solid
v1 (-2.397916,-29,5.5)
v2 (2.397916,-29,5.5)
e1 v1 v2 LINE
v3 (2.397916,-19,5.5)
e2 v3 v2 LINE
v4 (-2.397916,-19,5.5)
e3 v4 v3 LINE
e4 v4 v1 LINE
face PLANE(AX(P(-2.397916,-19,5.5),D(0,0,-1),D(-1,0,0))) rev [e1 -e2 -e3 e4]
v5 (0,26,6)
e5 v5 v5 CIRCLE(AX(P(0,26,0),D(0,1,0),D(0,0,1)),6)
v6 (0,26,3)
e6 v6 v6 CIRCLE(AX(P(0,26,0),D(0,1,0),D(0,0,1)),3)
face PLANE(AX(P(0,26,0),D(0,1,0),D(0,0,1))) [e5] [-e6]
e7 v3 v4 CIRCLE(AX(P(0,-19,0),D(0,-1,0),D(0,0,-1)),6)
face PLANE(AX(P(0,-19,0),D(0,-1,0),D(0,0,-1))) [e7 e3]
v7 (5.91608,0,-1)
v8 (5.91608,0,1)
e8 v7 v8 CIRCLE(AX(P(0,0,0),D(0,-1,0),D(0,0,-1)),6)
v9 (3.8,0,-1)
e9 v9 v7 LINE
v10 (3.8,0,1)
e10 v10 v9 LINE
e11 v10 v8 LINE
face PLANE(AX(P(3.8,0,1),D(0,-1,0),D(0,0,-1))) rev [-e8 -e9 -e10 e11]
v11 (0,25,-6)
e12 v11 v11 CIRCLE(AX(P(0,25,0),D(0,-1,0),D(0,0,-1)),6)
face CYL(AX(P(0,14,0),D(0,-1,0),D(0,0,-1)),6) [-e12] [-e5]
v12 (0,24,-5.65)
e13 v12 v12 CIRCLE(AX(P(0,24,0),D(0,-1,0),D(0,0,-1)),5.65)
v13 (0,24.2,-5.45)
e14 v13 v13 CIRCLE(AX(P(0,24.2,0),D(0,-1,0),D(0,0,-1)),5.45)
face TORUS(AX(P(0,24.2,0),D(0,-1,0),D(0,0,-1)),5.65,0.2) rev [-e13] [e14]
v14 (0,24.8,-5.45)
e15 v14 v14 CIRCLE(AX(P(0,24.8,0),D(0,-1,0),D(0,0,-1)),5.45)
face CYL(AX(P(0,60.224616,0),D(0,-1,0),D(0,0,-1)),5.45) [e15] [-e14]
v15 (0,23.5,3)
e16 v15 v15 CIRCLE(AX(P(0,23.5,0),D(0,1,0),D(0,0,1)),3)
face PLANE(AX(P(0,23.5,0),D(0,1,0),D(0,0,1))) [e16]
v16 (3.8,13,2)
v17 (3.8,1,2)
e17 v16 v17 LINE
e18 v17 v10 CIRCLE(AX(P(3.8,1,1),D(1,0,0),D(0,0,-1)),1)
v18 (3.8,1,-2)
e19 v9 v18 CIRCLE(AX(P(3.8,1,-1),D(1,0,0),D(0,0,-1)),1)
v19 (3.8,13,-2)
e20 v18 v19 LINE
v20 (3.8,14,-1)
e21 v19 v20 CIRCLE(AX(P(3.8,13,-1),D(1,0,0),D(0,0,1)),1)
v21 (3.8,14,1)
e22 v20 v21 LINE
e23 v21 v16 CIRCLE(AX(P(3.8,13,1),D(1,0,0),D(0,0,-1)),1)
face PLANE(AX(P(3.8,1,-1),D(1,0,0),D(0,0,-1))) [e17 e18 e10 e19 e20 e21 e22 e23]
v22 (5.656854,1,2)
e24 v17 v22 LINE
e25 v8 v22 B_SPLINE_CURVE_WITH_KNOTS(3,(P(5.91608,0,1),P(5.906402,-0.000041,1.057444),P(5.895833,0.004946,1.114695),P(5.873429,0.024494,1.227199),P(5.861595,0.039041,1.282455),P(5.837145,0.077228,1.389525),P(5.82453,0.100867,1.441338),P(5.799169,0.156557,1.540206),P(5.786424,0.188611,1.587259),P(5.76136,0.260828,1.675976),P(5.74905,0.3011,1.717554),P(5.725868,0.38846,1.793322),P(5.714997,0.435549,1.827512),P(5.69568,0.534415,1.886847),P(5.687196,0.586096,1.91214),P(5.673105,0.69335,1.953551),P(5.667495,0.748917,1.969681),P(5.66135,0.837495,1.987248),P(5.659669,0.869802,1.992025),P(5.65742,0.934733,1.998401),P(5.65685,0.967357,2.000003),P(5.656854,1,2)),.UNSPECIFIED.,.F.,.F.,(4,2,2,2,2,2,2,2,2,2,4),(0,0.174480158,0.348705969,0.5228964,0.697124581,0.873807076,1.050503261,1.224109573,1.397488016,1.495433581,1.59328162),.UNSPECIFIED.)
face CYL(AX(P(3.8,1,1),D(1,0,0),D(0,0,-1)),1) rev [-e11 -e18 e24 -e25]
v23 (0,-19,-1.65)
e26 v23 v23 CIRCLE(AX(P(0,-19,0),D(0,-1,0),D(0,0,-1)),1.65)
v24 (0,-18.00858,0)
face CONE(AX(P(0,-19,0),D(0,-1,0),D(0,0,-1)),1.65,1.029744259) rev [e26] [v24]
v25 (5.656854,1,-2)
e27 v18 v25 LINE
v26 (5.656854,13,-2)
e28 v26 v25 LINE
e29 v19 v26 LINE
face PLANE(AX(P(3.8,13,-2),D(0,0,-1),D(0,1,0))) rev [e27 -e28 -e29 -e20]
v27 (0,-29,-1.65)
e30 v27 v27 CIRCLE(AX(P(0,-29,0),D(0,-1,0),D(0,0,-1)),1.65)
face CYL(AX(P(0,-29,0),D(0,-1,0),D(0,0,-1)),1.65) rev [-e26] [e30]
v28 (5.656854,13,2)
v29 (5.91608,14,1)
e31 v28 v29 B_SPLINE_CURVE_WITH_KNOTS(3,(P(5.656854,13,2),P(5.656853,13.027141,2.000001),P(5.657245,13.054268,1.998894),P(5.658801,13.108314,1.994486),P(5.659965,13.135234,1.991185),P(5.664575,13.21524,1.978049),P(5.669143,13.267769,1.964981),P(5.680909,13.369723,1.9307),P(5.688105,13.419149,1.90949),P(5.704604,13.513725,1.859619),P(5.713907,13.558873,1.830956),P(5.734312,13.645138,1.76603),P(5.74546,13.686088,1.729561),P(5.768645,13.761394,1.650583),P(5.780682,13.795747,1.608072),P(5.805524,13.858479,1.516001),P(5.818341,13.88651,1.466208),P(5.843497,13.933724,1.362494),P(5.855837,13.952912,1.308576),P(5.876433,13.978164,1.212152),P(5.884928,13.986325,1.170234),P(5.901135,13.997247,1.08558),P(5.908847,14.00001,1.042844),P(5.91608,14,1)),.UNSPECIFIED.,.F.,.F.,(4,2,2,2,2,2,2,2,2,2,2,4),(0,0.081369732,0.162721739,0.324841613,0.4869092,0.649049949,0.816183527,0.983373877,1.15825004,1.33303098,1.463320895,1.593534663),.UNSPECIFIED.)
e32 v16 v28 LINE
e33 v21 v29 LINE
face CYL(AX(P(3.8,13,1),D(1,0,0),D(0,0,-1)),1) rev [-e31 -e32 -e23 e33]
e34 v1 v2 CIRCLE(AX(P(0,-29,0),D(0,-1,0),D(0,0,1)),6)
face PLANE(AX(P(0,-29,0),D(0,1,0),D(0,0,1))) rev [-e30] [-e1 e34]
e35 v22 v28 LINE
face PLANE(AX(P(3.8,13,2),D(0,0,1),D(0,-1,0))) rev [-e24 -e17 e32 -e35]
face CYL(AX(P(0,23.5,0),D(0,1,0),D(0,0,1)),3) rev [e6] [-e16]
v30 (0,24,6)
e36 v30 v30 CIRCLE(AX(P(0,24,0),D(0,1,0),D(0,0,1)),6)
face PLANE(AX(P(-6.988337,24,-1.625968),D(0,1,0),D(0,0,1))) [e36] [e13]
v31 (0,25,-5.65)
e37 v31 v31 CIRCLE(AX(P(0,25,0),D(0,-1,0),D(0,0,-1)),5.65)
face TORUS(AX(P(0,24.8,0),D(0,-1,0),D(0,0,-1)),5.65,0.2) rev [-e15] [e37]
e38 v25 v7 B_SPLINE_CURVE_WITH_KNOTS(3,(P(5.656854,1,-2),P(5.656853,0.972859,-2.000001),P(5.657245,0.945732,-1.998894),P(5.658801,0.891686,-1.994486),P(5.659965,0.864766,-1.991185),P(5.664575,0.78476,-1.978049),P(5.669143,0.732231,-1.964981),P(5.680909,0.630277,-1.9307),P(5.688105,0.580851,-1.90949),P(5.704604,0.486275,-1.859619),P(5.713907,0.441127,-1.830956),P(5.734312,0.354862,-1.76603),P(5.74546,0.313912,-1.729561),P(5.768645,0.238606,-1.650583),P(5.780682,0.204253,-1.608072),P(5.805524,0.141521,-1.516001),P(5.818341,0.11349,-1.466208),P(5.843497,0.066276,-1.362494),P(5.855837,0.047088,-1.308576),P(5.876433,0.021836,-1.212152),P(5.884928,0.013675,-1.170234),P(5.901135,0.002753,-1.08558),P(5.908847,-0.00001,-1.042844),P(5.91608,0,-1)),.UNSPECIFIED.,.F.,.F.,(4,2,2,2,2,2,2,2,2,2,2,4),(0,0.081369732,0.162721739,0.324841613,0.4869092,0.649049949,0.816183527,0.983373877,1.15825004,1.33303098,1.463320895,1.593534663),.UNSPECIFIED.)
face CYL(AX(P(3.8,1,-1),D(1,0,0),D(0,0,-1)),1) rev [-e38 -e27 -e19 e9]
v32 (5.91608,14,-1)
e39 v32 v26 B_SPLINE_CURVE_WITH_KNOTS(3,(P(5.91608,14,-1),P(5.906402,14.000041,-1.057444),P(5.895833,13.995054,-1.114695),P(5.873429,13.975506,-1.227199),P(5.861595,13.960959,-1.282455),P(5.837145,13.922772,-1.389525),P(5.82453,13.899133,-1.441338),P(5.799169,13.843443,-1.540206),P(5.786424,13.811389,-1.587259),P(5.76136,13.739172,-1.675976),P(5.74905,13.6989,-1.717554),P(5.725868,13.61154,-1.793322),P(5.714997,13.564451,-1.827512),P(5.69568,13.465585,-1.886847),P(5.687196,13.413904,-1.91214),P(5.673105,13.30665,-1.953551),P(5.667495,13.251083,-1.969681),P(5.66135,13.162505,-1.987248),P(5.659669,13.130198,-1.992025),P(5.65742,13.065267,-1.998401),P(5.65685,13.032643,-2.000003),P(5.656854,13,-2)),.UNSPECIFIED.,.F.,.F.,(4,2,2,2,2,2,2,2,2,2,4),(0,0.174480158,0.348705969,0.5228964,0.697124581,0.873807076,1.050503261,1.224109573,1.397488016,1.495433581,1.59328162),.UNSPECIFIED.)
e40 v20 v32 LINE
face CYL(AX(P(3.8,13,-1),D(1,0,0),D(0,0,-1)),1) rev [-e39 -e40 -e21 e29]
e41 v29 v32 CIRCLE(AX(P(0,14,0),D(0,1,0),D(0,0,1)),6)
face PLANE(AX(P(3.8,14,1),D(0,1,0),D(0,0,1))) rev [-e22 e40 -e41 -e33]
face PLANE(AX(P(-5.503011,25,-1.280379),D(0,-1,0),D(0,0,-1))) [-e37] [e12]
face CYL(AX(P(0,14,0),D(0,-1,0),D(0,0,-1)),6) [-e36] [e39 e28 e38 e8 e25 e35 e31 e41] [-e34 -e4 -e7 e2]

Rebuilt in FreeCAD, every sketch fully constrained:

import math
import FreeCAD as App
import Part
import Sketcher
from FreeCAD import Vector
Q = App.Units.Quantity

doc = App.newDocument("Part")
params = doc.addObject("Spreadsheet::Sheet", "Params")
for row, (alias, value) in enumerate([
    ("sketch1_radius", "6 mm"),
    ("pad1_length", "14 mm"),
    ("sketch2_diameter", "12 mm"),
    ("pad2_length", "12 mm"),
    ("sketch3_diameter", "12 mm"),
    ("pad3_length", "15 mm"),
    ("sketch4_radius", "0.2 mm"),
    ("sketch4_length", "1 mm"),
    ("groove_angle", "360 deg"),
    ("sketch5_radius", "1 mm"),
    ("sketch5_width", "12 mm"),
    ("sketch5_height", "2 mm"),
    ("pocket1_length", "2.2 mm"),
    ("sketch6_radius", "6 mm"),
    ("pad4_length", "14 mm"),
    ("sketch7_radius", "6 mm"),
    ("pocket2_length", "10 mm"),
    ("sketch8_diameter", "6 mm"),
    ("pocket3_length", "2.5 mm"),
    ("sketch9_diameter", "3.3 mm"),
    ("hole_diameter", "3.3 mm"),
    ("hole_depth", "10 mm"),
], start=1):
    params.set(f"A{row}", alias)
    params.set(f"B{row}", "=" + value)
    params.setAlias(f"B{row}", alias)

body = doc.addObject("PartDesign::Body", "Body")

sketch1 = body.newObject("Sketcher::SketchObject", "Sketch")
sketch1.AttachmentSupport = (doc.getObject("XZ_Plane"), [""])
sketch1.MapMode = "FlatFace"
sketch1.addGeometry(Part.ArcOfCircle(Part.Circle(Vector(0, 0, 0), Vector(0, 0, 1), 6), math.radians(19), math.radians(341)), False)
sketch1.addGeometry(Part.ArcOfCircle(Part.Circle(Vector(0, 0, 0), Vector(0, 0, 1), 6), math.radians(-19), math.radians(19)), False)
sketch1.addConstraint(Sketcher.Constraint("Tangent", 0, 1, 1, 2))
sketch1.addConstraint(Sketcher.Constraint("Coincident", 1, 1, 0, 2))
sketch1.addConstraint(Sketcher.Constraint("Coincident", 0, 3, -1, 1))
sketch1.addConstraint(Sketcher.Constraint("Vertical", 0, 1, 1, 1))
sketch1.addConstraint(Sketcher.Constraint("Radius", 0, Q("6 mm")))
sketch1.addConstraint(Sketcher.Constraint("DistanceY", -1, 1, 0, 1, Q("2 mm")))
sketch1.setExpression("Constraints[4]", "Params.sketch1_radius")
pad1 = body.newObject("PartDesign::Pad", "Pad")
pad1.Profile = sketch1
pad1.setExpression("Length", "Params.pad1_length")
pad1.Reversed = True

sketch2 = body.newObject("Sketcher::SketchObject", "Sketch001")
sketch2.AttachmentSupport = (doc.getObject("XZ_Plane"), [""])
sketch2.MapMode = "FlatFace"
sketch2.AttachmentOffset = App.Placement(Vector(0, 0, -14), App.Rotation())
sketch2.addGeometry(Part.Circle(Vector(0, 0, 0), Vector(0, 0, 1), 6), False)
sketch2.addConstraint(Sketcher.Constraint("Coincident", 0, 3, -1, 1))
sketch2.addConstraint(Sketcher.Constraint("Diameter", 0, Q("12 mm")))
sketch2.setExpression("Constraints[1]", "Params.sketch2_diameter")
pad2 = body.newObject("PartDesign::Pad", "Pad001")
pad2.Profile = sketch2
pad2.setExpression("Length", "Params.pad2_length")
pad2.Reversed = True

sketch3 = body.newObject("Sketcher::SketchObject", "Sketch002")
sketch3.AttachmentSupport = (doc.getObject("XZ_Plane"), [""])
sketch3.MapMode = "FlatFace"
sketch3.AttachmentOffset = App.Placement(Vector(0, 0, 15), App.Rotation())
sketch3.addGeometry(Part.Circle(Vector(0, 0, 0), Vector(0, 0, 1), 6), False)
sketch3.addConstraint(Sketcher.Constraint("Coincident", 0, 3, -1, 1))
sketch3.addConstraint(Sketcher.Constraint("Diameter", 0, Q("12 mm")))
sketch3.setExpression("Constraints[1]", "Params.sketch3_diameter")
pad3 = body.newObject("PartDesign::Pad", "Pad002")
pad3.Profile = sketch3
pad3.setExpression("Length", "Params.pad3_length")
pad3.Reversed = True

sketch4 = body.newObject("Sketcher::SketchObject", "Sketch003")
sketch4.Placement = App.Placement(Vector(1.604253, 12.18289, 0.37326), App.Rotation(Vector(-0.934326243, 0.282447697, -0.217388523), Vector(-0.275099609, -0.9592827, -0.064007083), Vector(-0.226615703, 0, 0.973984252), "ZXY"))
sketch4.addGeometry(Part.LineSegment(Vector(10.62, -10.23, 0), Vector(12.08, -9.8, 0)), False)
sketch4.addGeometry(Part.LineSegment(Vector(12.08, -9.8, 0), Vector(11.8, -8.84, 0)), False)
sketch4.addGeometry(Part.LineSegment(Vector(11.8, -8.84, 0), Vector(10.34, -9.27, 0)), False)
sketch4.addGeometry(Part.ArcOfCircle(Part.Circle(Vector(10.39, -9.47, 0), Vector(0, 0, 1), 0.2), math.radians(106), math.radians(196)), False)
sketch4.addGeometry(Part.LineSegment(Vector(10.2, -9.52, 0), Vector(10.37, -10.1, 0)), False)
sketch4.addGeometry(Part.ArcOfCircle(Part.Circle(Vector(10.56, -10.04, 0), Vector(0, 0, 1), 0.2), math.radians(-164), math.radians(-74)), False)
sketch4.addGeometry(Part.LineSegment(Vector(5.2, -11.83, 0), Vector(4.92, -10.87, 0)), True)
sketch4.addConstraint(Sketcher.Constraint("Coincident", 0, 2, 1, 1))
sketch4.addConstraint(Sketcher.Constraint("Coincident", 1, 2, 2, 1))
sketch4.addConstraint(Sketcher.Constraint("Tangent", 2, 2, 3, 1))
sketch4.addConstraint(Sketcher.Constraint("Tangent", 3, 2, 4, 1))
sketch4.addConstraint(Sketcher.Constraint("Tangent", 4, 2, 5, 1))
sketch4.addConstraint(Sketcher.Constraint("Tangent", 5, 2, 0, 1))
sketch4.addConstraint(Sketcher.Constraint("Equal", 3, 5))
sketch4.addConstraint(Sketcher.Constraint("Perpendicular", 0, 1))
sketch4.addConstraint(Sketcher.Constraint("Perpendicular", 1, 2))
sketch4.addConstraint(Sketcher.Constraint("Perpendicular", 2, 4))
sketch4.addConstraint(Sketcher.Constraint("Parallel", 4, 6))
sketch4.addConstraint(Sketcher.Constraint("Equal", 1, 6))
sketch4.addConstraint(Sketcher.Constraint("Radius", 3, Q("0.2 mm")))
sketch4.addConstraint(Sketcher.Constraint("Distance", 1, Q("1 mm")))
sketch4.addConstraint(Sketcher.Constraint("Distance", 0, Q("1.525 mm")))
sketch4.addConstraint(Sketcher.Constraint("DistanceX", -1, 1, 2, 2, Q("10.337701 mm")))
sketch4.addConstraint(Sketcher.Constraint("DistanceY", 2, 2, -1, 1, Q("9.274899 mm")))
sketch4.addConstraint(Sketcher.Constraint("DistanceX", -1, 1, 6, 1, Q("5.200201 mm")))
sketch4.addConstraint(Sketcher.Constraint("DistanceX", 2, 2, 4, 2, Q("0.034102 mm")))
sketch4.addConstraint(Sketcher.Constraint("DistanceY", 6, 1, -1, 1, Q("11.830011 mm")))
sketch4.setExpression("Constraints[12]", "Params.sketch4_radius")
sketch4.setExpression("Constraints[13]", "Params.sketch4_length")
groove = body.newObject("PartDesign::Groove", "Groove")
groove.Profile = sketch4
groove.ReferenceAxis = (sketch4, ["Axis0"])
groove.setExpression("Angle", "Params.groove_angle")

sketch5 = body.newObject("Sketcher::SketchObject", "Sketch004")
sketch5.AttachmentSupport = (doc.getObject("YZ_Plane"), [""])
sketch5.MapMode = "FlatFace"
sketch5.AttachmentOffset = App.Placement(Vector(0, 0, 6), App.Rotation())
sketch5.addGeometry(Part.LineSegment(Vector(14, -1, 0), Vector(14, 1, 0)), False)
sketch5.addGeometry(Part.ArcOfCircle(Part.Circle(Vector(13, 1, 0), Vector(0, 0, 1), 1), math.radians(0), math.radians(90)), False)
sketch5.addGeometry(Part.LineSegment(Vector(13, 2, 0), Vector(1, 2, 0)), False)
sketch5.addGeometry(Part.ArcOfCircle(Part.Circle(Vector(1, 1, 0), Vector(0, 0, 1), 1), math.radians(90), math.radians(180)), False)
sketch5.addGeometry(Part.LineSegment(Vector(0, 1, 0), Vector(0, -1, 0)), False)
sketch5.addGeometry(Part.ArcOfCircle(Part.Circle(Vector(1, -1, 0), Vector(0, 0, 1), 1), math.radians(-180), math.radians(-90)), False)
sketch5.addGeometry(Part.LineSegment(Vector(1, -2, 0), Vector(13, -2, 0)), False)
sketch5.addGeometry(Part.ArcOfCircle(Part.Circle(Vector(13, -1, 0), Vector(0, 0, 1), 1), math.radians(-90), math.radians(0)), False)
sketch5.addConstraint(Sketcher.Constraint("Tangent", 0, 2, 1, 1))
sketch5.addConstraint(Sketcher.Constraint("Tangent", 1, 2, 2, 1))
sketch5.addConstraint(Sketcher.Constraint("Tangent", 2, 2, 3, 1))
sketch5.addConstraint(Sketcher.Constraint("Tangent", 3, 2, 4, 1))
sketch5.addConstraint(Sketcher.Constraint("Tangent", 4, 2, 5, 1))
sketch5.addConstraint(Sketcher.Constraint("Tangent", 5, 2, 6, 1))
sketch5.addConstraint(Sketcher.Constraint("Tangent", 6, 2, 7, 1))
sketch5.addConstraint(Sketcher.Constraint("Tangent", 7, 2, 0, 1))
sketch5.addConstraint(Sketcher.Constraint("Vertical", 0))
sketch5.addConstraint(Sketcher.Constraint("Horizontal", 2))
sketch5.addConstraint(Sketcher.Constraint("Vertical", 4))
sketch5.addConstraint(Sketcher.Constraint("Horizontal", 6))
sketch5.addConstraint(Sketcher.Constraint("Equal", 1, 3))
sketch5.addConstraint(Sketcher.Constraint("Equal", 3, 5))
sketch5.addConstraint(Sketcher.Constraint("Equal", 5, 7))
sketch5.addConstraint(Sketcher.Constraint("Symmetric", 3, 2, 4, 2, -1, 1))
sketch5.addConstraint(Sketcher.Constraint("Radius", 1, Q("1 mm")))
sketch5.addConstraint(Sketcher.Constraint("DistanceX", 2, 2, 2, 1, Q("12 mm")))
sketch5.addConstraint(Sketcher.Constraint("DistanceY", 0, 1, 0, 2, Q("2 mm")))
sketch5.setExpression("Constraints[16]", "Params.sketch5_radius")
sketch5.setExpression("Constraints[17]", "Params.sketch5_width")
sketch5.setExpression("Constraints[18]", "Params.sketch5_height")
pocket1 = body.newObject("PartDesign::Pocket", "Pocket")
pocket1.Profile = sketch5
pocket1.setExpression("Length", "Params.pocket1_length")

sketch6 = body.newObject("Sketcher::SketchObject", "Sketch005")
sketch6.AttachmentSupport = (doc.getObject("XZ_Plane"), [""])
sketch6.MapMode = "FlatFace"
sketch6.AttachmentOffset = App.Placement(Vector(0, 0, 29), App.Rotation())
sketch6.addGeometry(Part.ArcOfCircle(Part.Circle(Vector(0, 0, 0), Vector(0, 0, 1), 6), math.radians(-66), math.radians(246)), False)
sketch6.addGeometry(Part.ArcOfCircle(Part.Circle(Vector(0, 0, 0), Vector(0, 0, 1), 6), math.radians(-114), math.radians(-66)), False)
sketch6.addConstraint(Sketcher.Constraint("Tangent", 0, 1, 1, 2))
sketch6.addConstraint(Sketcher.Constraint("Coincident", 1, 1, 0, 2))
sketch6.addConstraint(Sketcher.Constraint("Coincident", 0, 3, -1, 1))
sketch6.addConstraint(Sketcher.Constraint("Horizontal", 0, 1, 1, 1))
sketch6.addConstraint(Sketcher.Constraint("Radius", 0, Q("6 mm")))
sketch6.addConstraint(Sketcher.Constraint("DistanceY", 0, 1, -1, 1, Q("5.5 mm")))
sketch6.setExpression("Constraints[4]", "Params.sketch6_radius")
pad4 = body.newObject("PartDesign::Pad", "Pad003")
pad4.Profile = sketch6
pad4.setExpression("Length", "Params.pad4_length")
pad4.Reversed = True

sketch7 = body.newObject("Sketcher::SketchObject", "Sketch006")
sketch7.AttachmentSupport = (doc.getObject("XZ_Plane"), [""])
sketch7.MapMode = "FlatFace"
sketch7.AttachmentOffset = App.Placement(Vector(0, 0, 29), App.Rotation())
sketch7.addGeometry(Part.LineSegment(Vector(-2.4, 5.5, 0), Vector(2.4, 5.5, 0)), False)
sketch7.addGeometry(Part.ArcOfCircle(Part.Circle(Vector(0, 0, 0), Vector(0, 0, 1), 6), math.radians(66), math.radians(114)), False)
sketch7.addConstraint(Sketcher.Constraint("Coincident", 0, 1, 1, 2))
sketch7.addConstraint(Sketcher.Constraint("Coincident", 1, 1, 0, 2))
sketch7.addConstraint(Sketcher.Constraint("Horizontal", 0))
sketch7.addConstraint(Sketcher.Constraint("Coincident", 1, 3, -1, 1))
sketch7.addConstraint(Sketcher.Constraint("Radius", 1, Q("6 mm")))
sketch7.addConstraint(Sketcher.Constraint("DistanceY", -1, 1, 0, 1, Q("5.5 mm")))
sketch7.setExpression("Constraints[4]", "Params.sketch7_radius")
pocket2 = body.newObject("PartDesign::Pocket", "Pocket001")
pocket2.Profile = sketch7
pocket2.setExpression("Length", "Params.pocket2_length")

sketch8 = body.newObject("Sketcher::SketchObject", "Sketch007")
sketch8.AttachmentSupport = (doc.getObject("XZ_Plane"), [""])
sketch8.MapMode = "FlatFace"
sketch8.AttachmentOffset = App.Placement(Vector(0, 0, -26), App.Rotation())
sketch8.addGeometry(Part.Circle(Vector(0, 0, 0), Vector(0, 0, 1), 3), False)
sketch8.addConstraint(Sketcher.Constraint("Coincident", 0, 3, -1, 1))
sketch8.addConstraint(Sketcher.Constraint("Diameter", 0, Q("6 mm")))
sketch8.setExpression("Constraints[1]", "Params.sketch8_diameter")
pocket3 = body.newObject("PartDesign::Pocket", "Pocket002")
pocket3.Profile = sketch8
pocket3.setExpression("Length", "Params.pocket3_length")
pocket3.Reversed = True

sketch9 = body.newObject("Sketcher::SketchObject", "Sketch008")
sketch9.AttachmentSupport = (doc.getObject("XZ_Plane"), [""])
sketch9.MapMode = "FlatFace"
sketch9.AttachmentOffset = App.Placement(Vector(0, 0, 29), App.Rotation())
sketch9.addGeometry(Part.Circle(Vector(0, 0, 0), Vector(0, 0, 1), 1.6), False)
sketch9.addConstraint(Sketcher.Constraint("Coincident", 0, 3, -1, 1))
sketch9.addConstraint(Sketcher.Constraint("Diameter", 0, Q("3.3 mm")))
sketch9.setExpression("Constraints[1]", "Params.sketch9_diameter")
doc.recompute()
hole = body.newObject("PartDesign::Hole", "Hole")
hole.Profile = sketch9
hole.ThreadType = "None"
hole.setExpression("Diameter", "Params.hole_diameter")
hole.DepthType = "Dimension"
hole.setExpression("Depth", "Params.hole_depth")
hole.DrillPoint = "Angled"
hole.DrillPointAngle = 118

doc.recompute()
